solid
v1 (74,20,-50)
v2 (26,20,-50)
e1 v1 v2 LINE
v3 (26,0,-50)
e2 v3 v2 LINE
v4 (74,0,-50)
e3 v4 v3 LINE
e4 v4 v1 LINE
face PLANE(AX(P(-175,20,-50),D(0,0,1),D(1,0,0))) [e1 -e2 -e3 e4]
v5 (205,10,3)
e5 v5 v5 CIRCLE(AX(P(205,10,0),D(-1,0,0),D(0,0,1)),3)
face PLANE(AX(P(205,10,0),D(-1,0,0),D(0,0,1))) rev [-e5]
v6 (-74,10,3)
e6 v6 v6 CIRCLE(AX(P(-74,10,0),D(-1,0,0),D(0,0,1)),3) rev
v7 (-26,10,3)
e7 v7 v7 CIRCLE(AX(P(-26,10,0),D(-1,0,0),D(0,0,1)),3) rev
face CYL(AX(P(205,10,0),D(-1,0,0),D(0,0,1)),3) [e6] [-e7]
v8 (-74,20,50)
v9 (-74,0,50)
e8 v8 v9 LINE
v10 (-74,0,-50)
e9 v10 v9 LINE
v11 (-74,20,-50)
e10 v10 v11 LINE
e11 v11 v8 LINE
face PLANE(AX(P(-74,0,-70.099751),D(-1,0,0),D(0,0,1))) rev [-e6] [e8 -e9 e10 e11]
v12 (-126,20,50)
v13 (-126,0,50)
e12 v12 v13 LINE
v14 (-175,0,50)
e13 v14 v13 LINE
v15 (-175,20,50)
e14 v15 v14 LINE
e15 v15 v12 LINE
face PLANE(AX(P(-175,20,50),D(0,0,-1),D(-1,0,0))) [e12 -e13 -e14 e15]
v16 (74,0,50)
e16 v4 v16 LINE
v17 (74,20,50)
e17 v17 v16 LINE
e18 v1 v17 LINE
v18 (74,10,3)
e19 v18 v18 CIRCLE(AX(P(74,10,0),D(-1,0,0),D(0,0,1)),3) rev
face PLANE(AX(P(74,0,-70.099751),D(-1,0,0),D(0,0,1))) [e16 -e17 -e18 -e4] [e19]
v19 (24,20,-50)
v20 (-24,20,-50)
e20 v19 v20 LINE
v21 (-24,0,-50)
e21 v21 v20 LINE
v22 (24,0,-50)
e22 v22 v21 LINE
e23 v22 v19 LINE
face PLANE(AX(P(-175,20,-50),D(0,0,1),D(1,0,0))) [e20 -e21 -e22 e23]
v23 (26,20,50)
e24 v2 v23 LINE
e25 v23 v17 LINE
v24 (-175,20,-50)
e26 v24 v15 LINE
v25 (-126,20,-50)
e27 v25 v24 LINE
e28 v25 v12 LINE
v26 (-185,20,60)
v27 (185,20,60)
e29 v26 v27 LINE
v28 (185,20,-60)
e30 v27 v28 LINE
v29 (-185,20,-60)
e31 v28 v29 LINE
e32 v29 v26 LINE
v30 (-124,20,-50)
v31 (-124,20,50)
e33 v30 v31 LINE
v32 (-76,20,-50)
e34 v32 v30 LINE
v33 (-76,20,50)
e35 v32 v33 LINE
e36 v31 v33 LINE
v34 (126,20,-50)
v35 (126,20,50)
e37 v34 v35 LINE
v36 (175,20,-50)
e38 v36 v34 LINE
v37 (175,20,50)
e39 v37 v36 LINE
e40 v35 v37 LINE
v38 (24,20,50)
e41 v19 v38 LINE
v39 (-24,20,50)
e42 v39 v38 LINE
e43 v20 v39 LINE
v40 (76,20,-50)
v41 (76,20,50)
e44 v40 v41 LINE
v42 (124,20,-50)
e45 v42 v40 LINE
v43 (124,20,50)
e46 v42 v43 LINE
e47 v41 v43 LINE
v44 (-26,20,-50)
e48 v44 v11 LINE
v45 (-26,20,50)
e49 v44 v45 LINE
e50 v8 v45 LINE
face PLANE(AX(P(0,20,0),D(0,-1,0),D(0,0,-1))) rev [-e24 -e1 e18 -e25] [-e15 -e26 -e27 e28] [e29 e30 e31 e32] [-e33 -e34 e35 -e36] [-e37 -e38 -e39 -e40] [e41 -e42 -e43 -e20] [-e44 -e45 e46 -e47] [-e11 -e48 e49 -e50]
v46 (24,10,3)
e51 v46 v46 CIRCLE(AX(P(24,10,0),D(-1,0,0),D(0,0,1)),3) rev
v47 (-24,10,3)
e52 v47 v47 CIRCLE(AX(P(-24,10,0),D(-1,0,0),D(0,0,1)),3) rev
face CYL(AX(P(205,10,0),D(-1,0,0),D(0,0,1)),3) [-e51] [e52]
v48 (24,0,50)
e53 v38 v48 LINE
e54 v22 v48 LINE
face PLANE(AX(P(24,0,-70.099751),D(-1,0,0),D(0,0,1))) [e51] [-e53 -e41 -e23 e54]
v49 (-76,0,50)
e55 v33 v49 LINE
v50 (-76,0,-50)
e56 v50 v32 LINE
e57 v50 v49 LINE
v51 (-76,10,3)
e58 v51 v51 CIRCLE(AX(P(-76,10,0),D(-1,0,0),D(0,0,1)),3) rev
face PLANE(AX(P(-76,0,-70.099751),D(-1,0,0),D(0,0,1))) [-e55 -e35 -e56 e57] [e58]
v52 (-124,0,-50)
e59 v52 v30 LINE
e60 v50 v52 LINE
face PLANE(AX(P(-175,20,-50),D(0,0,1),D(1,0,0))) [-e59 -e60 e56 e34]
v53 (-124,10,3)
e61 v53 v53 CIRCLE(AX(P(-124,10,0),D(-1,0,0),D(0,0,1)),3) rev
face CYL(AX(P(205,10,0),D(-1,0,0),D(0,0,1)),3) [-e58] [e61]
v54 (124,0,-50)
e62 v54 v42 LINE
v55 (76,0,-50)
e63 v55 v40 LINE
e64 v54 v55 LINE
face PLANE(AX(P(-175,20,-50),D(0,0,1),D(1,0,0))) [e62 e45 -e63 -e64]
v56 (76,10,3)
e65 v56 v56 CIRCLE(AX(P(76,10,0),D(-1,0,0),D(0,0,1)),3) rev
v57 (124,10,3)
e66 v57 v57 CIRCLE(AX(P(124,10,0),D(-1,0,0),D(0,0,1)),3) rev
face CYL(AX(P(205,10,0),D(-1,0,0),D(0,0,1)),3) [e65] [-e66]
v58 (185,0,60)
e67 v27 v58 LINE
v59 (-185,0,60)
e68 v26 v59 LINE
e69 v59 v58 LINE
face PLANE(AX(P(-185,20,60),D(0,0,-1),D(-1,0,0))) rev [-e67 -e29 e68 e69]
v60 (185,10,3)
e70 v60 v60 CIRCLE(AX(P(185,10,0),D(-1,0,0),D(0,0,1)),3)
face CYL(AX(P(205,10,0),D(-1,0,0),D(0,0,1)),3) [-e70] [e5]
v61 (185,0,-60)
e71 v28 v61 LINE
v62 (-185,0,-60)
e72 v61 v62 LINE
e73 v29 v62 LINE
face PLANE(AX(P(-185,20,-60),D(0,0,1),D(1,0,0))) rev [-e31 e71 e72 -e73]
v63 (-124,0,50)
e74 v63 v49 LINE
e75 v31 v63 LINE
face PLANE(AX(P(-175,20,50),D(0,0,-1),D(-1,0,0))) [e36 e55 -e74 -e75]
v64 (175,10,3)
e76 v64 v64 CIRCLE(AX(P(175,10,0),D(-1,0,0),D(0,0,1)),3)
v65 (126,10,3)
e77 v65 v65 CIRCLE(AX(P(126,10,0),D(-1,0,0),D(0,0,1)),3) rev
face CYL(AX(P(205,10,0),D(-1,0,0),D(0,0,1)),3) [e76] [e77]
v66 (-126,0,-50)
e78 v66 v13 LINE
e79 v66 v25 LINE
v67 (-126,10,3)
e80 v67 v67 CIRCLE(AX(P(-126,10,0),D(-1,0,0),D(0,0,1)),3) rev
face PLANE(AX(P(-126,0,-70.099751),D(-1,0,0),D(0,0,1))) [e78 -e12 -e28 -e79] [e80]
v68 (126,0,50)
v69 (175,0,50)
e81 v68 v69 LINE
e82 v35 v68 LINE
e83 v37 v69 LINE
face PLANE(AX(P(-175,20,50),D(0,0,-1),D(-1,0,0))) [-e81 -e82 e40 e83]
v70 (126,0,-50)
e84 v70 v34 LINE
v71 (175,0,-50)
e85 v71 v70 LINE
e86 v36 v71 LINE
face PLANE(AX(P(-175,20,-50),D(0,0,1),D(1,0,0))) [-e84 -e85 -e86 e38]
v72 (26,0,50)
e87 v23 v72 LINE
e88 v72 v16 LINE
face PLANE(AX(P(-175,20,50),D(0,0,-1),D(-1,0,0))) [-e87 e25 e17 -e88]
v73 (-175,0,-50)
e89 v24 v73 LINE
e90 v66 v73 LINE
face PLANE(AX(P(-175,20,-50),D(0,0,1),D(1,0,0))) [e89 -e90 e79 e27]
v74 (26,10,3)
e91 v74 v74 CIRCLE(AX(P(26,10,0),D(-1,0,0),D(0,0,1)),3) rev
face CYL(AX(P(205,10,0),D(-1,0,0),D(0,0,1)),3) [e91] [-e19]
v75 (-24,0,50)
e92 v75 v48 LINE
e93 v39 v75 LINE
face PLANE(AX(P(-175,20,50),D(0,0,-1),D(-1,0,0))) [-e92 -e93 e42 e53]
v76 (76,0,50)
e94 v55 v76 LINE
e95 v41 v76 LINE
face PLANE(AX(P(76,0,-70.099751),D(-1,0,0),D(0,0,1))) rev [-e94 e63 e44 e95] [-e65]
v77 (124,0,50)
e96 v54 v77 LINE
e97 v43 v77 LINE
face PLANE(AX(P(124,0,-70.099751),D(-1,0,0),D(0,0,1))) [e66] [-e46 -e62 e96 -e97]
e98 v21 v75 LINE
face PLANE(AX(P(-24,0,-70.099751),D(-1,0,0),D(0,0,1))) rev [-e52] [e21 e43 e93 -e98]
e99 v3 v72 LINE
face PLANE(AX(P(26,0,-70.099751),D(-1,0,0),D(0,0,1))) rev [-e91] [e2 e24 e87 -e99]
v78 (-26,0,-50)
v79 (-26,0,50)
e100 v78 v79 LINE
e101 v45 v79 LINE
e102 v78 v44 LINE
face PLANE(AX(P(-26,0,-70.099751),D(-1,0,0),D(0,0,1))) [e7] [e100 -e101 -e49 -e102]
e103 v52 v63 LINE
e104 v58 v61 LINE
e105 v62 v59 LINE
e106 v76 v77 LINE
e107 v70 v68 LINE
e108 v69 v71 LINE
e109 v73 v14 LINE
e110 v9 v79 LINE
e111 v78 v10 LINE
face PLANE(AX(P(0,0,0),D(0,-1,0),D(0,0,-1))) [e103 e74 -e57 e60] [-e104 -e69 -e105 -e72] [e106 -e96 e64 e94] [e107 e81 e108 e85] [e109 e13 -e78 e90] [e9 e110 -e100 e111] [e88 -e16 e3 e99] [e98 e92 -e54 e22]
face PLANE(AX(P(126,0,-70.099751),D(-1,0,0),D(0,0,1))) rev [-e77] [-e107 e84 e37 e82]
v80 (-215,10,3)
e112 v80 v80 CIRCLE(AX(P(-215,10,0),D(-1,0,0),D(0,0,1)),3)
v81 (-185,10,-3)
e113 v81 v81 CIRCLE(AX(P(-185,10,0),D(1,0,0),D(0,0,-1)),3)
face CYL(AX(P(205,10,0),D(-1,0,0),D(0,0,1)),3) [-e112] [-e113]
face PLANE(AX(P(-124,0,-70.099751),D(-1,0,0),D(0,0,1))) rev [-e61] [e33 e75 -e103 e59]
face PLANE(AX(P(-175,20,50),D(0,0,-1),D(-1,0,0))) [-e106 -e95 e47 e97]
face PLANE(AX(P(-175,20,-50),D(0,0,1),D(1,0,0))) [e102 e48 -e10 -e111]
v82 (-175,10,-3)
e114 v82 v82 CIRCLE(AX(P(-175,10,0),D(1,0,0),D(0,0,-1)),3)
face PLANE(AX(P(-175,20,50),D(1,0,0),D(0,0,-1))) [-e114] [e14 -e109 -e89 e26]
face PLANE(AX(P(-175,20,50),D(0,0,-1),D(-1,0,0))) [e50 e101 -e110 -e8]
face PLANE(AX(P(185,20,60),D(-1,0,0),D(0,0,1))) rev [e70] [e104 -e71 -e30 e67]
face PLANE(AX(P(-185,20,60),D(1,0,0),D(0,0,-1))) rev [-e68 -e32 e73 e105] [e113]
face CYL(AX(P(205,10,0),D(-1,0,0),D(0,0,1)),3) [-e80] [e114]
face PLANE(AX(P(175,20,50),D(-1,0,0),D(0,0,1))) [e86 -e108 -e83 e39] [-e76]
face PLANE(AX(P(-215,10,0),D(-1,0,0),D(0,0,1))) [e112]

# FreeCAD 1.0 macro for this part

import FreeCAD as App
import Part
import Sketcher
from FreeCAD import Vector

doc = App.newDocument("Part")
body = doc.addObject("PartDesign::Body", "Body")

# Sketch on XZ plane
sketch1 = body.newObject("Sketcher::SketchObject", "Sketch")
sketch1.AttachmentSupport = (doc.getObject("XZ_Plane"), [""])
sketch1.MapMode = "FlatFace"
sketch1.addGeometry([
    Part.LineSegment(Vector(-185, -60, 0), Vector(-185, 60, 0)),  # 0
    Part.LineSegment(Vector(-185, 60, 0), Vector(185, 60, 0)),  # 1
    Part.LineSegment(Vector(185, 60, 0), Vector(185, -60, 0)),  # 2
    Part.LineSegment(Vector(185, -60, 0), Vector(-185, -60, 0)),  # 3
    Part.LineSegment(Vector(175, 50, 0), Vector(-175, 50, 0)),  # 4
    Part.LineSegment(Vector(-175, 50, 0), Vector(-175, -50, 0)),  # 5
    Part.LineSegment(Vector(-175, -50, 0), Vector(175, -50, 0)),  # 6
    Part.LineSegment(Vector(175, -50, 0), Vector(175, 50, 0)),  # 7
], False)
sketch1.addConstraint([
    Sketcher.Constraint("Coincident", 0, 2, 1, 1),
    Sketcher.Constraint("Coincident", 1, 2, 2, 1),
    Sketcher.Constraint("Coincident", 2, 2, 3, 1),
    Sketcher.Constraint("Coincident", 3, 2, 0, 1),
    Sketcher.Constraint("Coincident", 4, 2, 5, 1),
    Sketcher.Constraint("Coincident", 5, 2, 6, 1),
    Sketcher.Constraint("Coincident", 6, 2, 7, 1),
    Sketcher.Constraint("Coincident", 7, 2, 4, 1),
    Sketcher.Constraint("Vertical", 0),
    Sketcher.Constraint("Horizontal", 1),
    Sketcher.Constraint("Vertical", 2),
    Sketcher.Constraint("Horizontal", 3),
    Sketcher.Constraint("Horizontal", 4),
    Sketcher.Constraint("Vertical", 5),
    Sketcher.Constraint("Horizontal", 6),
    Sketcher.Constraint("Vertical", 7),
    Sketcher.Constraint("Symmetric", 0, 2, 2, 2, -1, 1),
    Sketcher.Constraint("Symmetric", 4, 2, 6, 2, -1, 1),
    Sketcher.Constraint("DistanceX", 1, 1, 1, 2, 370.0),
    Sketcher.Constraint("DistanceX", 4, 2, 4, 1, 350.0),
    Sketcher.Constraint("DistanceY", 0, 1, 0, 2, 120.0),
    Sketcher.Constraint("DistanceY", 5, 2, 5, 1, 100.0),
])
pad1 = body.newObject("PartDesign::Pad", "Pad")
pad1.Profile = sketch1
pad1.Length = 20
pad1.Reversed = True

# Sketch on YZ plane
sketch2 = body.newObject("Sketcher::SketchObject", "Sketch001")
sketch2.AttachmentSupport = (doc.getObject("YZ_Plane"), [""])
sketch2.MapMode = "FlatFace"
sketch2.AttachmentOffset = App.Placement(Vector(0, 0, -185), App.Rotation())
sketch2.addGeometry(Part.Circle(Vector(10, 0, 0), Vector(0, 0, 1), 3), False)
sketch2.addConstraint([
    Sketcher.Constraint("PointOnObject", 0, 3, -1),
    Sketcher.Constraint("Diameter", 0, 6.0),
    Sketcher.Constraint("DistanceX", -1, 1, 0, 3, 10.0),
])
pad2 = body.newObject("PartDesign::Pad", "Pad001")
pad2.Profile = sketch2
pad2.Type = "TwoLengths"
pad2.Length = 30
pad2.Length2 = 390
pad2.Reversed = True

# Sketch on XY plane
sketch3 = body.newObject("Sketcher::SketchObject", "Sketch002")
sketch3.AttachmentSupport = (doc.getObject("XY_Plane"), [""])
sketch3.MapMode = "FlatFace"
sketch3.AttachmentOffset = App.Placement(Vector(0, 0, 50), App.Rotation())
sketch3.addGeometry([
    Part.LineSegment(Vector(126, 20, 0), Vector(126, 0, 0)),  # 0
    Part.LineSegment(Vector(126, 0, 0), Vector(124, 0, 0)),  # 1
    Part.LineSegment(Vector(124, 0, 0), Vector(124, 20, 0)),  # 2
    Part.LineSegment(Vector(124, 20, 0), Vector(126, 20, 0)),  # 3
    Part.LineSegment(Vector(76, 20, 0), Vector(76, 0, 0)),  # 4
    Part.LineSegment(Vector(76, 0, 0), Vector(74, 0, 0)),  # 5
    Part.LineSegment(Vector(74, 0, 0), Vector(74, 20, 0)),  # 6
    Part.LineSegment(Vector(74, 20, 0), Vector(76, 20, 0)),  # 7
    Part.LineSegment(Vector(26, 20, 0), Vector(26, 0, 0)),  # 8
    Part.LineSegment(Vector(26, 0, 0), Vector(24, 0, 0)),  # 9
    Part.LineSegment(Vector(24, 0, 0), Vector(24, 20, 0)),  # 10
    Part.LineSegment(Vector(24, 20, 0), Vector(26, 20, 0)),  # 11
    Part.LineSegment(Vector(-24, 20, 0), Vector(-24, 0, 0)),  # 12
    Part.LineSegment(Vector(-24, 0, 0), Vector(-26, 0, 0)),  # 13
    Part.LineSegment(Vector(-26, 0, 0), Vector(-26, 20, 0)),  # 14
    Part.LineSegment(Vector(-26, 20, 0), Vector(-24, 20, 0)),  # 15
    Part.LineSegment(Vector(-74, 20, 0), Vector(-74, 0, 0)),  # 16
    Part.LineSegment(Vector(-74, 0, 0), Vector(-76, 0, 0)),  # 17
    Part.LineSegment(Vector(-76, 0, 0), Vector(-76, 20, 0)),  # 18
    Part.LineSegment(Vector(-76, 20, 0), Vector(-74, 20, 0)),  # 19
    Part.LineSegment(Vector(-124, 20, 0), Vector(-124, 0, 0)),  # 20
    Part.LineSegment(Vector(-124, 0, 0), Vector(-126, 0, 0)),  # 21
    Part.LineSegment(Vector(-126, 0, 0), Vector(-126, 20, 0)),  # 22
    Part.LineSegment(Vector(-126, 20, 0), Vector(-124, 20, 0)),  # 23
], False)
sketch3.addConstraint([
    Sketcher.Constraint("Coincident", 0, 2, 1, 1),
    Sketcher.Constraint("Coincident", 1, 2, 2, 1),
    Sketcher.Constraint("Coincident", 2, 2, 3, 1),
    Sketcher.Constraint("Coincident", 3, 2, 0, 1),
    Sketcher.Constraint("Coincident", 4, 2, 5, 1),
    Sketcher.Constraint("Coincident", 5, 2, 6, 1),
    Sketcher.Constraint("Coincident", 6, 2, 7, 1),
    Sketcher.Constraint("Coincident", 7, 2, 4, 1),
    Sketcher.Constraint("Coincident", 8, 2, 9, 1),
    Sketcher.Constraint("Coincident", 9, 2, 10, 1),
    Sketcher.Constraint("Coincident", 10, 2, 11, 1),
    Sketcher.Constraint("Coincident", 11, 2, 8, 1),
    Sketcher.Constraint("Coincident", 12, 2, 13, 1),
    Sketcher.Constraint("Coincident", 13, 2, 14, 1),
    Sketcher.Constraint("Coincident", 14, 2, 15, 1),
    Sketcher.Constraint("Coincident", 15, 2, 12, 1),
    Sketcher.Constraint("Coincident", 16, 2, 17, 1),
    Sketcher.Constraint("Coincident", 17, 2, 18, 1),
    Sketcher.Constraint("Coincident", 18, 2, 19, 1),
    Sketcher.Constraint("Coincident", 19, 2, 16, 1),
    Sketcher.Constraint("Coincident", 20, 2, 21, 1),
    Sketcher.Constraint("Coincident", 21, 2, 22, 1),
    Sketcher.Constraint("Coincident", 22, 2, 23, 1),
    Sketcher.Constraint("Coincident", 23, 2, 20, 1),
    Sketcher.Constraint("Vertical", 0),
    Sketcher.Constraint("Horizontal", 1),
    Sketcher.Constraint("Vertical", 2),
    Sketcher.Constraint("Horizontal", 3),
    Sketcher.Constraint("Vertical", 4),
    Sketcher.Constraint("Horizontal", 5),
    Sketcher.Constraint("Vertical", 6),
    Sketcher.Constraint("Horizontal", 7),
    Sketcher.Constraint("Vertical", 8),
    Sketcher.Constraint("Horizontal", 9),
    Sketcher.Constraint("Vertical", 10),
    Sketcher.Constraint("Horizontal", 11),
    Sketcher.Constraint("Vertical", 12),
    Sketcher.Constraint("Horizontal", 13),
    Sketcher.Constraint("Vertical", 14),
    Sketcher.Constraint("Horizontal", 15),
    Sketcher.Constraint("Vertical", 16),
    Sketcher.Constraint("Horizontal", 17),
    Sketcher.Constraint("Vertical", 18),
    Sketcher.Constraint("Horizontal", 19),
    Sketcher.Constraint("Vertical", 20),
    Sketcher.Constraint("Horizontal", 21),
    Sketcher.Constraint("Vertical", 22),
    Sketcher.Constraint("Horizontal", 23),
    Sketcher.Constraint("Symmetric", 9, 2, 12, 2, -1, 1),
    Sketcher.Constraint("Symmetric", 5, 2, 16, 2, -1, 1),
    Sketcher.Constraint("Symmetric", 1, 2, 20, 2, -1, 1),
    Sketcher.Constraint("Symmetric", 8, 2, 13, 2, -2),
    Sketcher.Constraint("Symmetric", 4, 2, 17, 2, -2),
    Sketcher.Constraint("Symmetric", 0, 2, 21, 2, -2),
    Sketcher.Constraint("Horizontal", 3, 2, 6, 2),
    Sketcher.Constraint("Horizontal", 7, 2, 10, 2),
    Sketcher.Constraint("Horizontal", 11, 2, 14, 2),
    Sketcher.Constraint("Horizontal", 15, 2, 18, 2),
    Sketcher.Constraint("Horizontal", 19, 2, 22, 2),
    Sketcher.Constraint("Equal", 3, 5),
    Sketcher.Constraint("Equal", 7, 9),
    Sketcher.Constraint("DistanceX", 1, 2, 1, 1, 2.0),
    Sketcher.Constraint("DistanceY", 0, 2, 0, 1, 20.0),
    Sketcher.Constraint("DistanceX", -1, 1, 0, 2, 126.0),
    Sketcher.Constraint("DistanceX", -1, 1, 4, 2, 76.0),
    Sketcher.Constraint("DistanceX", -1, 1, 8, 2, 26.0),
])
pad3 = body.newObject("PartDesign::Pad", "Pad002")
pad3.Profile = sketch3
pad3.Length = 100
pad3.Reversed = True

doc.recompute()
